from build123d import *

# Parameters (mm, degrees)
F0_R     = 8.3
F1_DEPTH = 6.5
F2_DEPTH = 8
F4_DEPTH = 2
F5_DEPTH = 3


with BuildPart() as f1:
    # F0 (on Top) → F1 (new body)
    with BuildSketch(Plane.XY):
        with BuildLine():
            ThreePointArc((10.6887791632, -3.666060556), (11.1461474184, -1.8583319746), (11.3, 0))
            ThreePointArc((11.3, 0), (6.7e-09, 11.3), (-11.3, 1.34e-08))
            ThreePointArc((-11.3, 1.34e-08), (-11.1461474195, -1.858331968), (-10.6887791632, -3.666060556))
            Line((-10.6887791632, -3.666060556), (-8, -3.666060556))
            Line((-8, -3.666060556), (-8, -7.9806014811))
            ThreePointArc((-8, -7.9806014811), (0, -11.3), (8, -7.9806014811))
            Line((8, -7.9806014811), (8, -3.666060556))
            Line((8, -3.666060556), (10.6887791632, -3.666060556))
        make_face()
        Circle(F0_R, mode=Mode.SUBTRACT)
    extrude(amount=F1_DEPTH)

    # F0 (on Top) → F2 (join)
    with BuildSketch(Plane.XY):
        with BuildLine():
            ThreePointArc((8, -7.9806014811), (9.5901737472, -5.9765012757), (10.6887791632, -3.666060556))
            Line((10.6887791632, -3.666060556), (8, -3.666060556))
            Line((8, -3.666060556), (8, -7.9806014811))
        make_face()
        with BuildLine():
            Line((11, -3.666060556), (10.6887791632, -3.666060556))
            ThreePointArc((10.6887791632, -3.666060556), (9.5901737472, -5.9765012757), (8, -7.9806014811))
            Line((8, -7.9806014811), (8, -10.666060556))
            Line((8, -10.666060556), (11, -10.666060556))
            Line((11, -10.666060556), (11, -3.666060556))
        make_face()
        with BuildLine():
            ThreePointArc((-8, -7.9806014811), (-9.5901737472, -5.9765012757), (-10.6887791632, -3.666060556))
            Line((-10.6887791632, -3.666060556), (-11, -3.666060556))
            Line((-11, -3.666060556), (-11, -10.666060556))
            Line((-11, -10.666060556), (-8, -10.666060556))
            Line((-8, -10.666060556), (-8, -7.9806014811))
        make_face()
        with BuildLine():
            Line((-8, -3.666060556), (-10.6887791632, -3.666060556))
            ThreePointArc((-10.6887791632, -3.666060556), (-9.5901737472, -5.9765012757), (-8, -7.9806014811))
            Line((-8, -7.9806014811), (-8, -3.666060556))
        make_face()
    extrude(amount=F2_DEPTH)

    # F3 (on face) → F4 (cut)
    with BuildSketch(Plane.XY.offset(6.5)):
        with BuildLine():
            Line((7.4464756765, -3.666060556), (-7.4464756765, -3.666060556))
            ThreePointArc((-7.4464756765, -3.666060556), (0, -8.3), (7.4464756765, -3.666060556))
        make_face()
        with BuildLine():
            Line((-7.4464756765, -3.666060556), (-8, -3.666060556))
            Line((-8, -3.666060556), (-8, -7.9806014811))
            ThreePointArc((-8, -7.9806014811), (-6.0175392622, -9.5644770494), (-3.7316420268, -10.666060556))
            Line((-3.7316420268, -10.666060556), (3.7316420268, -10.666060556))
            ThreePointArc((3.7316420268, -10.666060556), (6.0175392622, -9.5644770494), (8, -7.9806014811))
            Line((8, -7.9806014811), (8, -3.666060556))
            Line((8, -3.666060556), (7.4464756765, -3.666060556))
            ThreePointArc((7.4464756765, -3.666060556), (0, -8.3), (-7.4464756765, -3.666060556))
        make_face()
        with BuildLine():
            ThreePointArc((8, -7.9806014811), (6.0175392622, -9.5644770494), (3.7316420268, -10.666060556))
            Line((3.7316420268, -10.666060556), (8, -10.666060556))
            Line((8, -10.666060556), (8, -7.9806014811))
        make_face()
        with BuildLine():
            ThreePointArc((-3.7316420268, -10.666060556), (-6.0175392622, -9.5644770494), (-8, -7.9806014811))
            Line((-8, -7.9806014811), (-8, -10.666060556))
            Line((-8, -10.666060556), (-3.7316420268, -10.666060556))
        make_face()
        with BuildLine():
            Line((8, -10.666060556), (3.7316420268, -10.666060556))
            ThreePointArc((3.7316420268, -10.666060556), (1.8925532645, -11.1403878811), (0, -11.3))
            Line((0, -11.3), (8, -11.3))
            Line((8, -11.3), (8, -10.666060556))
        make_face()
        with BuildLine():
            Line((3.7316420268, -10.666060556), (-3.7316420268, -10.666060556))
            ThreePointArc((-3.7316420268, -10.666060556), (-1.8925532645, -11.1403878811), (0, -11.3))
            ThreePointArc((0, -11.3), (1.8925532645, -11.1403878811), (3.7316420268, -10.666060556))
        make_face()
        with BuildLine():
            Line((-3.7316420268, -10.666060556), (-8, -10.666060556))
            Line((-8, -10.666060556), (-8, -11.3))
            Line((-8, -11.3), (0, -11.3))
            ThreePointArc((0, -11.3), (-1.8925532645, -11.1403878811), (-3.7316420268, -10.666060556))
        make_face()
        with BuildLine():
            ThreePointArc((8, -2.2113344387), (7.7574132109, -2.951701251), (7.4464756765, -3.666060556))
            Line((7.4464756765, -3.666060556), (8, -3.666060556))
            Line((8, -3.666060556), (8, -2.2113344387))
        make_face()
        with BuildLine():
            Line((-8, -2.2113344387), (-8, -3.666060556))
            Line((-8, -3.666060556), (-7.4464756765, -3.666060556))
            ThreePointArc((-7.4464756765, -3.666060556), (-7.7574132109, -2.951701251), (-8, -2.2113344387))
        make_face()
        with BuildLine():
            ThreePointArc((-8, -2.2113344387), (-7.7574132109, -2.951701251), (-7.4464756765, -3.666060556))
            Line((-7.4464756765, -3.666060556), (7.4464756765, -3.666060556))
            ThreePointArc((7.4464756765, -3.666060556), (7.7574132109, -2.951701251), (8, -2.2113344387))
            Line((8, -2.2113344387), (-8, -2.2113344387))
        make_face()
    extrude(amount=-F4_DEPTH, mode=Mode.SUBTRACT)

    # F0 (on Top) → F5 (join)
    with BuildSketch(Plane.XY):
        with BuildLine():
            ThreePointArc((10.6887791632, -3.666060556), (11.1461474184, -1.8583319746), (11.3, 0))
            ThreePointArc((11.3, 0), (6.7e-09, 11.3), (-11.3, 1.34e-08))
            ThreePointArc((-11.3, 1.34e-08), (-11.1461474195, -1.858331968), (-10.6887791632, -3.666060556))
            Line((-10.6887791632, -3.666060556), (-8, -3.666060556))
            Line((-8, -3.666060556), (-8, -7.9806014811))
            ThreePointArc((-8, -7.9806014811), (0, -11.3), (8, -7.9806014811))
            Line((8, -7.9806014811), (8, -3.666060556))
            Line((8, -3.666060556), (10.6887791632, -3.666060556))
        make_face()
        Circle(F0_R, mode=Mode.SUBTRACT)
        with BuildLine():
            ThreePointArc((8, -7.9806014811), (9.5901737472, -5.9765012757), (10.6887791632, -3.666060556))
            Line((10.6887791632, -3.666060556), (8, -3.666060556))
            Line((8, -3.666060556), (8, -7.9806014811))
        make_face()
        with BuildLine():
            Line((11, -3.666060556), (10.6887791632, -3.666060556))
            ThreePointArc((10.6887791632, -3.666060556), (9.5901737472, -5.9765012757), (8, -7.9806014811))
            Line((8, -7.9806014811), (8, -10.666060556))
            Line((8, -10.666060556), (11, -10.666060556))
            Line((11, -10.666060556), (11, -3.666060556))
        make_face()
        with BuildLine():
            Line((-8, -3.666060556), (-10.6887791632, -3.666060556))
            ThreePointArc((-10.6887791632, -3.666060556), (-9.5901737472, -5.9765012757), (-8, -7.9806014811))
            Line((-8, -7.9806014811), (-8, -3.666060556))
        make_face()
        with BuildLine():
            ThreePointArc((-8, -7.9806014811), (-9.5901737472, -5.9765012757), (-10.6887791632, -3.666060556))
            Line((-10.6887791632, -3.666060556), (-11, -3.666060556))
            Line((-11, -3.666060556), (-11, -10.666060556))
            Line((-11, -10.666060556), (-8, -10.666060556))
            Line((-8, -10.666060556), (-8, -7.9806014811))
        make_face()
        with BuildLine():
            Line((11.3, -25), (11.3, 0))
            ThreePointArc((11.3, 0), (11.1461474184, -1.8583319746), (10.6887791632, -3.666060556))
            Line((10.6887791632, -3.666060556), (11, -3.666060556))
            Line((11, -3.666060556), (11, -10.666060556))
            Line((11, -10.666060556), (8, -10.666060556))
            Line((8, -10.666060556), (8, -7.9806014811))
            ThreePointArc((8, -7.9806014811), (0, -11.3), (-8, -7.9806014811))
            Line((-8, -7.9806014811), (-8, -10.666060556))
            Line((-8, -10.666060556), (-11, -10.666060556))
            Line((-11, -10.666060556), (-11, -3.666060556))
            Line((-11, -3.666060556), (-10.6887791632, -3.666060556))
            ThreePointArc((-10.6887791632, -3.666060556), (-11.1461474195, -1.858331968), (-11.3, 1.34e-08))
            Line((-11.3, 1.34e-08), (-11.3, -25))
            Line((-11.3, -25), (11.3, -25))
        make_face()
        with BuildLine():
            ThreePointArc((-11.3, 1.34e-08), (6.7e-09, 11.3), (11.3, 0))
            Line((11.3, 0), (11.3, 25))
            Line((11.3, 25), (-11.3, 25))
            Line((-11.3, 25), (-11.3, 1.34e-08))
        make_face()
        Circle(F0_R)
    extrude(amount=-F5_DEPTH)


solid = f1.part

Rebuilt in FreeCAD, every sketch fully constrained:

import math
import FreeCAD as App
import Part
import Sketcher
from FreeCAD import Vector


def add_polygon(sketch, points):
    """Adds a closed chain of lines whose ends are joined by coincident constraints."""
    first, n = sketch.GeometryCount, len(points)
    for a, b in zip(points, points[1:] + points[:1]):
        sketch.addGeometry(Part.LineSegment(App.Vector(*a, 0), App.Vector(*b, 0)), False)
    for i in range(n):
        sketch.addConstraint(Sketcher.Constraint("Coincident", first + i, 2, first + (i + 1) % n, 1))

doc = App.newDocument("Part")
body = doc.addObject("PartDesign::Body", "Body")

sketch1 = doc.addObject("Sketcher::SketchObject", "Sketch")
body.addObject(sketch1)
sketch1.AttachmentSupport = (doc.XY_Plane, [""])
sketch1.MapMode = "FlatFace"
sketch1.addGeometry([
    Part.ArcOfCircle(Part.Circle(Vector(0, 0, 0), Vector(0, 0, 1), 11.3), math.radians(-18.931054), math.radians(0)),
    Part.ArcOfCircle(Part.Circle(Vector(0, 0, 0), Vector(0, 0, 1), 11.3), math.radians(0), math.radians(180)),
    Part.ArcOfCircle(Part.Circle(Vector(0, 0, 0), Vector(0, 0, 1), 11.3), math.radians(180), math.radians(198.931054)),
    Part.LineSegment(Vector(-10.688779, -3.666061, 0), Vector(-8, -3.666061, 0)),
    Part.LineSegment(Vector(-8, -3.666061, 0), Vector(-8, -7.980601, 0)),
    Part.ArcOfCircle(Part.Circle(Vector(0, 0, 0), Vector(0, 0, 1), 11.3), math.radians(-135.06955), math.radians(-44.93045)),
    Part.LineSegment(Vector(8, -7.980601, 0), Vector(8, -3.666061, 0)),
    Part.LineSegment(Vector(8, -3.666061, 0), Vector(10.688779, -3.666061, 0)),
    Part.Circle(Vector(0, 0, 0), Vector(0, 0, 1), 8.3),
], False)
sketch1.addConstraint([
    Sketcher.Constraint("Tangent", 0, 2, 1, 1),
    Sketcher.Constraint("Tangent", 1, 2, 2, 1),
    Sketcher.Constraint("Coincident", 2, 2, 3, 1),
    Sketcher.Constraint("Coincident", 3, 2, 4, 1),
    Sketcher.Constraint("Coincident", 4, 2, 5, 1),
    Sketcher.Constraint("Coincident", 5, 2, 6, 1),
    Sketcher.Constraint("Coincident", 6, 2, 7, 1),
    Sketcher.Constraint("Coincident", 7, 2, 0, 1),
    Sketcher.Constraint("Horizontal", 3),
    Sketcher.Constraint("Vertical", 4),
    Sketcher.Constraint("Vertical", 6),
    Sketcher.Constraint("Horizontal", 7),
    Sketcher.Constraint("Coincident", 0, 3, -1, 1),
    Sketcher.Constraint("Coincident", 5, 3, -1, 1),
    Sketcher.Constraint("Coincident", 8, 3, -1, 1),
    Sketcher.Constraint("Equal", 0, 1),
    Sketcher.Constraint("Equal", 1, 2),
    Sketcher.Constraint("Equal", 2, 5),
    Sketcher.Constraint("Symmetric", 3, 2, 6, 2, -2),
    Sketcher.Constraint("PointOnObject", 0, 2, -1),
    Sketcher.Constraint("PointOnObject", 1, 2, -1),
    Sketcher.Constraint("Diameter", 8, 16.6),
    Sketcher.Constraint("Radius", 0, 11.3),
    Sketcher.Constraint("DistanceX", 3, 2, -1, 1, 8.0),
    Sketcher.Constraint("DistanceX", 3, 1, 3, 2, 2.688779),
])
pad1 = doc.addObject("PartDesign::Pad", "Pad")
body.addObject(pad1)
pad1.Profile = sketch1
pad1.Length = 6.5

sketch2 = doc.addObject("Sketcher::SketchObject", "Sketch001")
body.addObject(sketch2)
sketch2.AttachmentSupport = (doc.XY_Plane, [""])
sketch2.MapMode = "FlatFace"
add_polygon(sketch2, [(8, -3.666061), (8, -10.666061), (11, -10.666061), (11, -3.666061)])
add_polygon(sketch2, [(-11, -3.666061), (-11, -10.666061), (-8, -10.666061), (-8, -3.666061)])
sketch2.addConstraint([
    Sketcher.Constraint("Vertical", 0),
    Sketcher.Constraint("Horizontal", 1),
    Sketcher.Constraint("Vertical", 2),
    Sketcher.Constraint("Horizontal", 3),
    Sketcher.Constraint("Vertical", 4),
    Sketcher.Constraint("Horizontal", 5),
    Sketcher.Constraint("Vertical", 6),
    Sketcher.Constraint("Horizontal", 7),
    Sketcher.Constraint("Symmetric", 1, 2, 4, 2, -2),
    Sketcher.Constraint("Symmetric", 3, 2, 6, 2, -2),
    Sketcher.Constraint("DistanceX", 1, 1, 1, 2, 3.0),
    Sketcher.Constraint("DistanceY", 0, 2, 0, 1, 7.0),
    Sketcher.Constraint("DistanceX", -1, 1, 0, 2, 8.0),
    Sketcher.Constraint("DistanceY", 0, 2, -1, 1, 10.666061),
])
pad2 = doc.addObject("PartDesign::Pad", "Pad001")
body.addObject(pad2)
pad2.Profile = sketch2
pad2.Length = 8

sketch3 = doc.addObject("Sketcher::SketchObject", "Sketch002")
body.addObject(sketch3)
sketch3.AttachmentSupport = (doc.XY_Plane, [""])
sketch3.MapMode = "FlatFace"
sketch3.AttachmentOffset = App.Placement(Vector(0, 0, 6.5), App.Rotation())
add_polygon(sketch3, [(-8, -11.3), (8, -11.3), (8, -2.211334), (-8, -2.211334)])
sketch3.addConstraint([
    Sketcher.Constraint("Horizontal", 0),
    Sketcher.Constraint("Vertical", 1),
    Sketcher.Constraint("Horizontal", 2),
    Sketcher.Constraint("Vertical", 3),
    Sketcher.Constraint("DistanceX", 0, 1, 0, 2, 16.0),
    Sketcher.Constraint("DistanceX", -1, 1, 0, 2, 8.0),
    Sketcher.Constraint("DistanceY", 0, 2, -1, 1, 11.3),
    Sketcher.Constraint("DistanceY", 1, 1, 1, 2, 9.088666),
])
pocket1 = doc.addObject("PartDesign::Pocket", "Pocket")
body.addObject(pocket1)
pocket1.Profile = sketch3
pocket1.Length = 2

sketch4 = doc.addObject("Sketcher::SketchObject", "Sketch003")
body.addObject(sketch4)
sketch4.AttachmentSupport = (doc.XY_Plane, [""])
sketch4.MapMode = "FlatFace"
add_polygon(sketch4, [(-11.3, -25), (11.3, -25), (11.3, 25), (-11.3, 25)])
sketch4.addConstraint([
    Sketcher.Constraint("Horizontal", 0),
    Sketcher.Constraint("Vertical", 1),
    Sketcher.Constraint("Horizontal", 2),
    Sketcher.Constraint("Vertical", 3),
    Sketcher.Constraint("Symmetric", 0, 2, 2, 2, -1, 1),
    Sketcher.Constraint("DistanceY", 1, 1, 1, 2, 50.0),
    Sketcher.Constraint("DistanceX", 0, 1, 0, 2, 22.6),
])
pad3 = doc.addObject("PartDesign::Pad", "Pad002")
body.addObject(pad3)
pad3.Profile = sketch4
pad3.Length = 3
pad3.Reversed = True

doc.recompute()
